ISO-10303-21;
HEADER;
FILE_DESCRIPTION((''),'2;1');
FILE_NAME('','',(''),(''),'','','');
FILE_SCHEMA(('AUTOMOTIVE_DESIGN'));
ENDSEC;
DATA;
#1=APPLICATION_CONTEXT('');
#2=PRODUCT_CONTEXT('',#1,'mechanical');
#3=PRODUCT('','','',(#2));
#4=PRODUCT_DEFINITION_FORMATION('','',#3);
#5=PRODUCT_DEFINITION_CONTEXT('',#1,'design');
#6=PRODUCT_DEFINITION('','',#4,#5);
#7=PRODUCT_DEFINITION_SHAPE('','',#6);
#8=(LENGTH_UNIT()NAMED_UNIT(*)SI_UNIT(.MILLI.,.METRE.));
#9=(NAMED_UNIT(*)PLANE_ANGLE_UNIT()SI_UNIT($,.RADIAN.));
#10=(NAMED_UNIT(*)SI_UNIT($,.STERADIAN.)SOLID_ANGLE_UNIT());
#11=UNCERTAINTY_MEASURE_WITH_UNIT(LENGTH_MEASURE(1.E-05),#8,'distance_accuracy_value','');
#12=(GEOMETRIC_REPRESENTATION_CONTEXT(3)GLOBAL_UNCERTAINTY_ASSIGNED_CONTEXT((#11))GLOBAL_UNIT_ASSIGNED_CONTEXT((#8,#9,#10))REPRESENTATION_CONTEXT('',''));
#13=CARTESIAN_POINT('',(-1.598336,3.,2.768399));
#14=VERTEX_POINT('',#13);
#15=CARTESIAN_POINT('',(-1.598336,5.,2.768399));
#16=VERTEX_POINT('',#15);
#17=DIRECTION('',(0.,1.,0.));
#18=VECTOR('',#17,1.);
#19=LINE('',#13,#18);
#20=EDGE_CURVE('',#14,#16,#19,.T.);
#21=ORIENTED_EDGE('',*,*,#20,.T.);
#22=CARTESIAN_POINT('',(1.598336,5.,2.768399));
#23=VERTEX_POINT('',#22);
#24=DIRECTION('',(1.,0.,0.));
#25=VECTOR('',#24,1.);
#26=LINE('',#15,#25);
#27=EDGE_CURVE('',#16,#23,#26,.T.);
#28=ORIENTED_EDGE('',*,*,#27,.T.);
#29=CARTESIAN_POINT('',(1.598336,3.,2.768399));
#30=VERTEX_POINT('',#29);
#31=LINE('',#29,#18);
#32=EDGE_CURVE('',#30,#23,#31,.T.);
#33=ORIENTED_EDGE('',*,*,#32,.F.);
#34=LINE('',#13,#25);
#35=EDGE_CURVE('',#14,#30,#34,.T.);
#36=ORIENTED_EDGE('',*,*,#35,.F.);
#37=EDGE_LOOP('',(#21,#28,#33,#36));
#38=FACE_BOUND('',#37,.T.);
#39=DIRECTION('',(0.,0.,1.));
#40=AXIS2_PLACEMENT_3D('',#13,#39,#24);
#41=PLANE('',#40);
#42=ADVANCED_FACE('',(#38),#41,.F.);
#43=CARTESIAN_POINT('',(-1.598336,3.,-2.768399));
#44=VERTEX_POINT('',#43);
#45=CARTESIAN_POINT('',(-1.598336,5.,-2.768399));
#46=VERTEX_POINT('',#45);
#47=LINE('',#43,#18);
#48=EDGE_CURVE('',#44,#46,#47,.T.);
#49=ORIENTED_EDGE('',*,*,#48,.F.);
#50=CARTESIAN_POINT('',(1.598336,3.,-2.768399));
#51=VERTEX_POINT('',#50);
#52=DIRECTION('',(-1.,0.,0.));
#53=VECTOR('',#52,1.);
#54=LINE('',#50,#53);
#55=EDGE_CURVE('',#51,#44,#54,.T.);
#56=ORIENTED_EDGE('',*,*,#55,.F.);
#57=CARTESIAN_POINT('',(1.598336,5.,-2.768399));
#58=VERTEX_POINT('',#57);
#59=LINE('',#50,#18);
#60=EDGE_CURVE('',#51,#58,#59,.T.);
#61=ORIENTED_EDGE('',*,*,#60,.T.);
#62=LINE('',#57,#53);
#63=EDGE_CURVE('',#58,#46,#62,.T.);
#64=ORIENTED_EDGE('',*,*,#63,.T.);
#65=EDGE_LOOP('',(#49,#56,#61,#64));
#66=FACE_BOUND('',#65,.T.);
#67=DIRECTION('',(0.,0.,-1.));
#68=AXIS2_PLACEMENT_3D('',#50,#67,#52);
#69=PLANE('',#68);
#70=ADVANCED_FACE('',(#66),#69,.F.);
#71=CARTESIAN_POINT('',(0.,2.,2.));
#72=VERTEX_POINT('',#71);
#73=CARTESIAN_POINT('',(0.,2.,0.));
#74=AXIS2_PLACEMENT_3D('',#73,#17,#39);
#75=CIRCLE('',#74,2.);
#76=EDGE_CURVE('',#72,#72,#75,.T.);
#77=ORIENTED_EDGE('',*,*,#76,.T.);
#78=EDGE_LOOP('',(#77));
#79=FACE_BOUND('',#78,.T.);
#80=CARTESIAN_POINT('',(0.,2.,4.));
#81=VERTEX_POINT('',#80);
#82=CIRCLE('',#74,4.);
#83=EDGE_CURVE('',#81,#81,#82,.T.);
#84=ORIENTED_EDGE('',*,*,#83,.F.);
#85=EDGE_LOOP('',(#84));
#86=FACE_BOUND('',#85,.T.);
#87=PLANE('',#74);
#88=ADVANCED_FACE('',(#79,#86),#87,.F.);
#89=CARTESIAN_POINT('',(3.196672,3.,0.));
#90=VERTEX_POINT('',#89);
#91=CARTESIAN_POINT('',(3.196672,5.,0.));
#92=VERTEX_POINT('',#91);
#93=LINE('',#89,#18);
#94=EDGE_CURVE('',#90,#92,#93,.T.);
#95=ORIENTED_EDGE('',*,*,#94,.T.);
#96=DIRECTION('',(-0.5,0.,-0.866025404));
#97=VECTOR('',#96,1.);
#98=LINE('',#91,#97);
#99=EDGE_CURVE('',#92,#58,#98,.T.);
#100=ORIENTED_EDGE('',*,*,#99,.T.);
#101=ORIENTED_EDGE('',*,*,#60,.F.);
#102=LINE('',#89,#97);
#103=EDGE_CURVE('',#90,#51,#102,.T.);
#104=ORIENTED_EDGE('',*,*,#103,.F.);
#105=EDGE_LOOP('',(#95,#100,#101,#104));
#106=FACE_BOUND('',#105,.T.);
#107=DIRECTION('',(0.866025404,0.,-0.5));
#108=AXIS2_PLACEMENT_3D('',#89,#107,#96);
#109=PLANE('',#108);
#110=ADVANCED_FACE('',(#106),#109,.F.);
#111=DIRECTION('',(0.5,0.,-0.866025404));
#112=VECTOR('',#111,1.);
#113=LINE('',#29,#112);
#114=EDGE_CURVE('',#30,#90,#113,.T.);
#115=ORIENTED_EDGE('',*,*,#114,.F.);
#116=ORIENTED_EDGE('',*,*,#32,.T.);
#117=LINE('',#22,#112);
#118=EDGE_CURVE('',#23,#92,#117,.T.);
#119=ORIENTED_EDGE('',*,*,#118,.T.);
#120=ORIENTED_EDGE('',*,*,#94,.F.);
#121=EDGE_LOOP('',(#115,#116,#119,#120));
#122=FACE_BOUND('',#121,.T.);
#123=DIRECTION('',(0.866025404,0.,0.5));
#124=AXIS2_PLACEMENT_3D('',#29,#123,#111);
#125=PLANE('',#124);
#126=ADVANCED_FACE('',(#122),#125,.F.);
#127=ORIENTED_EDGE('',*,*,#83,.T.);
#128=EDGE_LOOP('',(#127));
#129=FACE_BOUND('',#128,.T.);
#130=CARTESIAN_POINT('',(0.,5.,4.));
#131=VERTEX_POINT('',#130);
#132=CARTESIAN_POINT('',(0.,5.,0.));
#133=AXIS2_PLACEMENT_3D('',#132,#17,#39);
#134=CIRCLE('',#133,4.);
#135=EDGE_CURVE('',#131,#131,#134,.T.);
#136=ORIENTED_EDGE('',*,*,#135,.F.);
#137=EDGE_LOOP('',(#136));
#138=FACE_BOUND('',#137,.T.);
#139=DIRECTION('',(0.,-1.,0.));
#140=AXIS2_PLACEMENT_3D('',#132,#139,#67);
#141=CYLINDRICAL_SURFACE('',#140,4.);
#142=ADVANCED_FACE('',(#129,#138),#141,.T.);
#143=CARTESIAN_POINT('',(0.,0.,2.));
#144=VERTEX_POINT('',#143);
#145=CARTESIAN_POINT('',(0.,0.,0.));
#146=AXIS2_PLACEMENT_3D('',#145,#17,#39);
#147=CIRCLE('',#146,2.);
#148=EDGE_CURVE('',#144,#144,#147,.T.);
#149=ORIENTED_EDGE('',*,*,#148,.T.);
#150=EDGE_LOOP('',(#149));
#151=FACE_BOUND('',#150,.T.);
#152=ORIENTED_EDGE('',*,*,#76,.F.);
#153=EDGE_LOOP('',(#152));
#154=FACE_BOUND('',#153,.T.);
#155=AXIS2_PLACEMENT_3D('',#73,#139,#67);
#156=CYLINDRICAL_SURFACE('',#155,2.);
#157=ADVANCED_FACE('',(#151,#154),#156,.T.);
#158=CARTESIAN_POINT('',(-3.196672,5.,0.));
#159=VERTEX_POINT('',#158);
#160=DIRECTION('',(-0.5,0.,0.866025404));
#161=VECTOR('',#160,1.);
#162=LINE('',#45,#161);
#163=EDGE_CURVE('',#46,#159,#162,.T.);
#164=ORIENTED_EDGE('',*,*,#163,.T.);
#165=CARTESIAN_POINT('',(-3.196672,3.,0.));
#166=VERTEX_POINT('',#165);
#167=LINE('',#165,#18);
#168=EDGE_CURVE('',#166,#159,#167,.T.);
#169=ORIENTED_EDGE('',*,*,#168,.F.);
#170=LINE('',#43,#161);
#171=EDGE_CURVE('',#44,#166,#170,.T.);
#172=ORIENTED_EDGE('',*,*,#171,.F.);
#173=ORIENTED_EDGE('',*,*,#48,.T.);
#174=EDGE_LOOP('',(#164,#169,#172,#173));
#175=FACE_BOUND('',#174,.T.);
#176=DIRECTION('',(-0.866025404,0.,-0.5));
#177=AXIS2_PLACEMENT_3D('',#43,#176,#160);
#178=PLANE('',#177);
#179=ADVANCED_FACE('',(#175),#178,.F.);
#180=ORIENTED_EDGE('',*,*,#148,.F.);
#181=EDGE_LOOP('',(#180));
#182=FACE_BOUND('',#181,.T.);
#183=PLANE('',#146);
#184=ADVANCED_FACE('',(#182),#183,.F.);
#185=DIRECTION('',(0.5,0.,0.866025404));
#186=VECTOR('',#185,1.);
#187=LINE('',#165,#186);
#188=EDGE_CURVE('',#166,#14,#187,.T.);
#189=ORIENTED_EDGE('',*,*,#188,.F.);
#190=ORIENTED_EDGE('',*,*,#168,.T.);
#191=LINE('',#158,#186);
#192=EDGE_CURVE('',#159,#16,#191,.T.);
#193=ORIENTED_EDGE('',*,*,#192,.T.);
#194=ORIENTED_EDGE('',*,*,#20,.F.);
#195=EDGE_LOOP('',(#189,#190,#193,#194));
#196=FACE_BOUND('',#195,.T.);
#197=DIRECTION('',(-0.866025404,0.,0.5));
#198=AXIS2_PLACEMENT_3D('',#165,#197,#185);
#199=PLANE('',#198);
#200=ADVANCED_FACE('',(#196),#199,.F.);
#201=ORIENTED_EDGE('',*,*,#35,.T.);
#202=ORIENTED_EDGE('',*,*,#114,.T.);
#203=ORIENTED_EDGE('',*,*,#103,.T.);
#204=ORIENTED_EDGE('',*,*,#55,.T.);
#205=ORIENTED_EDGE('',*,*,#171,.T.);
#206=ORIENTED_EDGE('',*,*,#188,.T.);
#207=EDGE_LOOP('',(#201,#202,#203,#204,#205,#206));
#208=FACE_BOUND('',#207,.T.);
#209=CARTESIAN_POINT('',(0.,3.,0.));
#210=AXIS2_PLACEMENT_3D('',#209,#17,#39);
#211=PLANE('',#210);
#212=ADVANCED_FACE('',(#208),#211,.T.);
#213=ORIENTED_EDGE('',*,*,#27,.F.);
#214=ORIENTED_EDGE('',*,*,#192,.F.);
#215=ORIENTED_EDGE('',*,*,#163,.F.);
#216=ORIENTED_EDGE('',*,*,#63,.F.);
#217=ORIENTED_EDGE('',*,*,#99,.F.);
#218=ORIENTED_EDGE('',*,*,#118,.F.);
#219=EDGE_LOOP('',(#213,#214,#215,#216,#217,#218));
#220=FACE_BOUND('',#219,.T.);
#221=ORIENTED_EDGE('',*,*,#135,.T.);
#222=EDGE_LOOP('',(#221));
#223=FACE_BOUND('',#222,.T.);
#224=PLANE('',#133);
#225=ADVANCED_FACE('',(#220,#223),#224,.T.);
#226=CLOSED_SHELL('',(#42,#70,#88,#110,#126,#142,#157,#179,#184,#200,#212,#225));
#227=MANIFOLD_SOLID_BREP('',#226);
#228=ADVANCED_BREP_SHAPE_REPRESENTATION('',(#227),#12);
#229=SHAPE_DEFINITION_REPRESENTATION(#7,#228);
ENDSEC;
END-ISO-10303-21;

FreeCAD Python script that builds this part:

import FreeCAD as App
import Part
import Sketcher
from FreeCAD import Vector
Q = App.Units.Quantity

doc = App.newDocument("Part")
body = doc.addObject("PartDesign::Body", "Body")

# Sketch on XZ plane
sketch1 = doc.addObject("Sketcher::SketchObject", "Sketch")
body.addObject(sketch1)
sketch1.AttachmentSupport = (doc.XZ_Plane, [""])
sketch1.MapMode = "FlatFace"
sketch1.addGeometry(Part.Circle(Vector(0, 0, 0), Vector(0, 0, 1), 2), False)
sketch1.addConstraint([
    Sketcher.Constraint("Coincident", 0, 3, -1, 1),
    Sketcher.Constraint("Diameter", 0, Q("4 mm")),
])
pad1 = doc.addObject("PartDesign::Pad", "Pad")
body.addObject(pad1)
pad1.Profile = sketch1
pad1.Length = 2
pad1.Reversed = True

# Sketch on XZ plane
sketch2 = doc.addObject("Sketcher::SketchObject", "Sketch001")
body.addObject(sketch2)
sketch2.AttachmentSupport = (doc.XZ_Plane, [""])
sketch2.MapMode = "FlatFace"
sketch2.AttachmentOffset = App.Placement(Vector(0, 0, -2), App.Rotation())
sketch2.addGeometry(Part.Circle(Vector(0, 0, 0), Vector(0, 0, 1), 4), False)
sketch2.addConstraint([
    Sketcher.Constraint("Coincident", 0, 3, -1, 1),
    Sketcher.Constraint("Diameter", 0, Q("8 mm")),
])
pad2 = doc.addObject("PartDesign::Pad", "Pad001")
body.addObject(pad2)
pad2.Profile = sketch2
pad2.Length = 3
pad2.Reversed = True

# Sketch on XZ plane
sketch3 = doc.addObject("Sketcher::SketchObject", "Sketch002")
body.addObject(sketch3)
sketch3.AttachmentSupport = (doc.XZ_Plane, [""])
sketch3.MapMode = "FlatFace"
sketch3.AttachmentOffset = App.Placement(Vector(0, 0, -5), App.Rotation())
sketch3.addGeometry([
    Part.LineSegment(Vector(3.2, 0, 0), Vector(1.6, -2.8, 0)),  # 0
    Part.LineSegment(Vector(1.6, -2.8, 0), Vector(-1.6, -2.8, 0)),  # 1
    Part.LineSegment(Vector(-1.6, -2.8, 0), Vector(-3.2, 0, 0)),  # 2
    Part.LineSegment(Vector(-3.2, 0, 0), Vector(-1.6, 2.8, 0)),  # 3
    Part.LineSegment(Vector(-1.6, 2.8, 0), Vector(1.6, 2.8, 0)),  # 4
    Part.LineSegment(Vector(1.6, 2.8, 0), Vector(3.2, 0, 0)),  # 5
], False)
sketch3.addConstraint([
    Sketcher.Constraint("Coincident", 0, 2, 1, 1),
    Sketcher.Constraint("Coincident", 1, 2, 2, 1),
    Sketcher.Constraint("Coincident", 2, 2, 3, 1),
    Sketcher.Constraint("Coincident", 3, 2, 4, 1),
    Sketcher.Constraint("Coincident", 4, 2, 5, 1),
    Sketcher.Constraint("Coincident", 5, 2, 0, 1),
    Sketcher.Constraint("Horizontal", 1),
    Sketcher.Constraint("Horizontal", 4),
    Sketcher.Constraint("Symmetric", 0, 2, 3, 2, -1, 1),
    Sketcher.Constraint("Symmetric", 2, 2, 5, 2, -1, 1),
    Sketcher.Constraint("PointOnObject", 2, 2, -1),
    Sketcher.Constraint("Parallel", 2, 5),
    Sketcher.Constraint("Vertical", 1, 2, 3, 2),
    Sketcher.Constraint("Angle", 0, Q("-120 deg")),
    Sketcher.Constraint("DistanceX", 1, 2, 1, 1, Q("3.196672 mm")),
    Sketcher.Constraint("DistanceY", 0, 2, -1, 1, Q("2.768399 mm")),
])
pocket1 = doc.addObject("PartDesign::Pocket", "Pocket")
body.addObject(pocket1)
pocket1.Profile = sketch3
pocket1.Length = 2
pocket1.Reversed = True

doc.recompute()
